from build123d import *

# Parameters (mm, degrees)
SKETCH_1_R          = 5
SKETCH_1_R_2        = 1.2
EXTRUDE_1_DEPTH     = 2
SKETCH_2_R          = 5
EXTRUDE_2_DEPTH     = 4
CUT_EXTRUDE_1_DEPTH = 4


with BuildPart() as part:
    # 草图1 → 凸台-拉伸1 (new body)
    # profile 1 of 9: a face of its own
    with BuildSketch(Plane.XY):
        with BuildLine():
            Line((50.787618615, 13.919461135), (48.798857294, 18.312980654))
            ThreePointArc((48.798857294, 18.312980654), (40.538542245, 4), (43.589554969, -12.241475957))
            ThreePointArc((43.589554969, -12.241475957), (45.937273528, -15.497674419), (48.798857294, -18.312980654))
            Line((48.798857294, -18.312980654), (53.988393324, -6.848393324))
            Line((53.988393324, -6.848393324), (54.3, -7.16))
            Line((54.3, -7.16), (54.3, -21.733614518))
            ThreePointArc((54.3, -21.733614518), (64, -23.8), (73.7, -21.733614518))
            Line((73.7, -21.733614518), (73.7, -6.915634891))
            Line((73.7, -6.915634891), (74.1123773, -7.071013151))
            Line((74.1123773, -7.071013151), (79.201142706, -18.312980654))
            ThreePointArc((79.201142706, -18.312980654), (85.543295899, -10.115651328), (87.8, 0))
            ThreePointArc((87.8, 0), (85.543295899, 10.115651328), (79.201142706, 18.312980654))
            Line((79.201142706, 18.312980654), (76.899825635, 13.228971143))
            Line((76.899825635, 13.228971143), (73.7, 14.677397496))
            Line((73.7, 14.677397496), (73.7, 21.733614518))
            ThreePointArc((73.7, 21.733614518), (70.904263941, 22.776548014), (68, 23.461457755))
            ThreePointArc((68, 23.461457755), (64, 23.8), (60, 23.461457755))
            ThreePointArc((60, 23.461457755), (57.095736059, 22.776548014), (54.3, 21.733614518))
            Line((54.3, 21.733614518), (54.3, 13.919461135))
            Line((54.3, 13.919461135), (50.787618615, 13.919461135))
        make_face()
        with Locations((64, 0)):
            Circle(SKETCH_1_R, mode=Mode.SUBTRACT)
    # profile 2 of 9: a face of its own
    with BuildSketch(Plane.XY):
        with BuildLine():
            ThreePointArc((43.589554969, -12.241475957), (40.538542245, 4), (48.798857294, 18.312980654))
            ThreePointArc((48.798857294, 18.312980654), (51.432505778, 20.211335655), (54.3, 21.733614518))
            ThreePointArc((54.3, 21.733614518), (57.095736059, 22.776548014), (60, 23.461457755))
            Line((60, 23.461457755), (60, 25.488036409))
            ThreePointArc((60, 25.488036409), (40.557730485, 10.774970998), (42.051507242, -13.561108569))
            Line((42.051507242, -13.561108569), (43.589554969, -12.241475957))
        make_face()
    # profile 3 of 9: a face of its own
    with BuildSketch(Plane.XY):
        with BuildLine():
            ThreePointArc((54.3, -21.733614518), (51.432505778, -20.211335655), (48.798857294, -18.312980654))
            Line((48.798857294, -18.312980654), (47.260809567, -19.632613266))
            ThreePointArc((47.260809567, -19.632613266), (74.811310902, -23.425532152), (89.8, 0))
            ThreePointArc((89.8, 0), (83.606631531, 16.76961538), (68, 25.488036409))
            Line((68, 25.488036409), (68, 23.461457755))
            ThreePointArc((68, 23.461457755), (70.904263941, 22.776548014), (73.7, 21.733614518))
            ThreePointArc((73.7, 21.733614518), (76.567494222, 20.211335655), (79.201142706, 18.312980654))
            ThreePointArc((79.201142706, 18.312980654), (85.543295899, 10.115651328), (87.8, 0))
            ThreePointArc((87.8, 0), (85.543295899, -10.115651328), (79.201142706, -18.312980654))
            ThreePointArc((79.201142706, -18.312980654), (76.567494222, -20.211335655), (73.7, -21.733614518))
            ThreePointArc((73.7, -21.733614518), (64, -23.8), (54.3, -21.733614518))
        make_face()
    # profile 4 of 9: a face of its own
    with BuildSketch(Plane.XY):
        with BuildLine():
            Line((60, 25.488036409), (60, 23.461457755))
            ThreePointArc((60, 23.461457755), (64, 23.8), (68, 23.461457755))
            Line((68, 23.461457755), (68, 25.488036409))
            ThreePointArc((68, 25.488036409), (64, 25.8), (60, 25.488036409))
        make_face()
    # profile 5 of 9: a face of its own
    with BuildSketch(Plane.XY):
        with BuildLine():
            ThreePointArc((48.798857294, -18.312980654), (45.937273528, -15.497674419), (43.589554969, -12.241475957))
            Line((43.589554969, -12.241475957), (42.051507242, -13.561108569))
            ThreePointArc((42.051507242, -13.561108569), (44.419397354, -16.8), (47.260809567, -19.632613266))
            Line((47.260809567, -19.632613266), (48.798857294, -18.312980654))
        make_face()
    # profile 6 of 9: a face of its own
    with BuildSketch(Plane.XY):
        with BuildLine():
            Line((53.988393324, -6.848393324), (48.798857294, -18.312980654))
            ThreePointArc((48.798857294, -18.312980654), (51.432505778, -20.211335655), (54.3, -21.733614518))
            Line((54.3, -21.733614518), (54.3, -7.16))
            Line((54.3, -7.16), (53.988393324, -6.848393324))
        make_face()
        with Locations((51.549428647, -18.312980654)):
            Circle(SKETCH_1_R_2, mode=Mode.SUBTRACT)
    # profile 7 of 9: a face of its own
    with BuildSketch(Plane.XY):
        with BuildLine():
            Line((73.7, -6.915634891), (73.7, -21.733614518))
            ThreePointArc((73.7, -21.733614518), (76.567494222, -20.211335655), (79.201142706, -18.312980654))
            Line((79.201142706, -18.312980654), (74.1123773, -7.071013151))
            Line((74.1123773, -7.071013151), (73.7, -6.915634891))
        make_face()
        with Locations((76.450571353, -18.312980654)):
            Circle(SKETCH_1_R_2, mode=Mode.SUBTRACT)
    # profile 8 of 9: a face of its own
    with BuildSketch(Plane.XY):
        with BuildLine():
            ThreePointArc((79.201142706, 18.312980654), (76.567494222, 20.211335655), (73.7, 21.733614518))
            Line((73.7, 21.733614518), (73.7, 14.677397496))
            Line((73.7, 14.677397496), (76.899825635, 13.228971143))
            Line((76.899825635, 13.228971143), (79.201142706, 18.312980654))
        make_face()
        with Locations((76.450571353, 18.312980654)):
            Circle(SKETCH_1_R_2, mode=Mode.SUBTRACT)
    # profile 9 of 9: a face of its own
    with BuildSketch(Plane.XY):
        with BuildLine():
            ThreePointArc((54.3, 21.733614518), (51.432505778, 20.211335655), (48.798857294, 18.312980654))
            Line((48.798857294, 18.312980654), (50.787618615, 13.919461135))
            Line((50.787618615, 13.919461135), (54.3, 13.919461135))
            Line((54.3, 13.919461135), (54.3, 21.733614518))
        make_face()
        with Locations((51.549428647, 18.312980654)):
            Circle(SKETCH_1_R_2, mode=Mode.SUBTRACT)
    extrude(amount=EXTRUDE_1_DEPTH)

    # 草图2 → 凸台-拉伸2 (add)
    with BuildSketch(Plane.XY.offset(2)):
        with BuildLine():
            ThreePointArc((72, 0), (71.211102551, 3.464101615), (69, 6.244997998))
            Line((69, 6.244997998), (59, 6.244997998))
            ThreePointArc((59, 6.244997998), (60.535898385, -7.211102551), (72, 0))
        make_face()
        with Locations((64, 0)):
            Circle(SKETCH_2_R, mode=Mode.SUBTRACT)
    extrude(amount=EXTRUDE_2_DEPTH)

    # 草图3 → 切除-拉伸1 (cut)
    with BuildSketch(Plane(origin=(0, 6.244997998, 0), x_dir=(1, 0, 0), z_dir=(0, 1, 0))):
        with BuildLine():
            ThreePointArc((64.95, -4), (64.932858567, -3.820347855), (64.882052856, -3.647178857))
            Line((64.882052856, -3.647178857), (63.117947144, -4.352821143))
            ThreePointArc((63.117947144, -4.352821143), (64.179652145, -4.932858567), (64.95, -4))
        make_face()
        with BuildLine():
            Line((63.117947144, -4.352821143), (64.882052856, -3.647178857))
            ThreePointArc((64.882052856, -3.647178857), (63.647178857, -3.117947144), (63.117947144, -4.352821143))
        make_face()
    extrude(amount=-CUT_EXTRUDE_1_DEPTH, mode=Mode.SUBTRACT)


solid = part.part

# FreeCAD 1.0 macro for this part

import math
import FreeCAD as App
import Part
import Sketcher

V = App.Vector

doc = App.newDocument("Part")
body = doc.addObject("PartDesign::Body", "Body")

# Sketch on XY plane
sketch1 = doc.addObject("Sketcher::SketchObject", "Sketch")
body.addObject(sketch1)
sketch1.AttachmentSupport = (doc.XY_Plane, [""])
sketch1.MapMode = "FlatFace"
sketch1.addGeometry(Part.ArcOfCircle(Part.Circle(V(64, 0, 0), V(0, 0, 1), 25.8), math.radians(98.919044), math.radians(211.710285)), False)
sketch1.addGeometry(Part.ArcOfCircle(Part.Circle(V(64, 0, 0), V(0, 0, 1), 25.8), math.radians(-148.289715), math.radians(-130.451627)), False)
sketch1.addGeometry(Part.ArcOfCircle(Part.Circle(V(64, 0, 0), V(0, 0, 1), 25.8), math.radians(-130.451627), math.radians(0)), False)
sketch1.addGeometry(Part.ArcOfCircle(Part.Circle(V(64, 0, 0), V(0, 0, 1), 25.8), math.radians(0), math.radians(81.080956)), False)
sketch1.addGeometry(Part.ArcOfCircle(Part.Circle(V(64, 0, 0), V(0, 0, 1), 25.8), math.radians(81.080956), math.radians(98.919044)), False)
sketch1.addGeometry(Part.Circle(V(64, 0, 0), V(0, 0, 1), 5), False)
sketch1.addGeometry(Part.Circle(V(51.549429, 18.312981, 0), V(0, 0, 1), 1.2), False)
sketch1.addGeometry(Part.Circle(V(51.549429, -18.312981, 0), V(0, 0, 1), 1.2), False)
sketch1.addGeometry(Part.Circle(V(76.450571, 18.312981, 0), V(0, 0, 1), 1.2), False)
sketch1.addGeometry(Part.Circle(V(76.450571, -18.312981, 0), V(0, 0, 1), 1.2), False)
sketch1.addConstraint(Sketcher.Constraint("Tangent", 0, 2, 1, 1))
sketch1.addConstraint(Sketcher.Constraint("Tangent", 1, 2, 2, 1))
sketch1.addConstraint(Sketcher.Constraint("Tangent", 2, 2, 3, 1))
sketch1.addConstraint(Sketcher.Constraint("Tangent", 3, 2, 4, 1))
sketch1.addConstraint(Sketcher.Constraint("Tangent", 4, 2, 0, 1))
sketch1.addConstraint(Sketcher.Constraint("Coincident", 2, 3, 0, 3))
sketch1.addConstraint(Sketcher.Constraint("Coincident", 5, 3, 0, 3))
sketch1.addConstraint(Sketcher.Constraint("Equal", 6, 7))
sketch1.addConstraint(Sketcher.Constraint("Equal", 7, 8))
sketch1.addConstraint(Sketcher.Constraint("Equal", 8, 9))
sketch1.addConstraint(Sketcher.Constraint("Symmetric", 6, 3, 7, 3, -1))
sketch1.addConstraint(Sketcher.Constraint("Symmetric", 8, 3, 9, 3, -1))
sketch1.addConstraint(Sketcher.Constraint("PointOnObject", 0, 3, -1))
sketch1.addConstraint(Sketcher.Constraint("PointOnObject", 2, 2, -1))
sketch1.addConstraint(Sketcher.Constraint("Horizontal", 6, 3, 8, 3))
sketch1.addConstraint(Sketcher.Constraint("Horizontal", 3, 2, 4, 2))
sketch1.addConstraint(Sketcher.Constraint("Diameter", 5, 10.0))
sketch1.addConstraint(Sketcher.Constraint("Diameter", 6, 2.4))
sketch1.addConstraint(Sketcher.Constraint("Radius", 0, 25.8))
sketch1.addConstraint(Sketcher.Constraint("DistanceX", -1, 1, 0, 3, 64.0))
sketch1.addConstraint(Sketcher.Constraint("DistanceX", -1, 1, 3, 2, 68.0))
sketch1.addConstraint(Sketcher.Constraint("DistanceX", -1, 1, 6, 3, 51.549429))
sketch1.addConstraint(Sketcher.Constraint("DistanceY", -1, 1, 6, 3, 18.312981))
sketch1.addConstraint(Sketcher.Constraint("DistanceX", -1, 1, 8, 3, 76.450571))
sketch1.addConstraint(Sketcher.Constraint("DistanceY", 0, 2, -1, 1, 13.561109))
sketch1.addConstraint(Sketcher.Constraint("DistanceX", -1, 1, 1, 2, 47.26081))
pad1 = doc.addObject("PartDesign::Pad", "Pad")
body.addObject(pad1)
pad1.Profile = sketch1
pad1.Length = 2

# Sketch on XY plane
sketch2 = doc.addObject("Sketcher::SketchObject", "Sketch001")
body.addObject(sketch2)
sketch2.AttachmentSupport = (doc.XY_Plane, [""])
sketch2.MapMode = "FlatFace"
sketch2.AttachmentOffset = App.Placement(V(0, 0, 2), App.Rotation())
sketch2.addGeometry(Part.ArcOfCircle(Part.Circle(V(64, 0, 0), V(0, 0, 1), 8), math.radians(0), math.radians(51.317813)), False)
sketch2.addGeometry(Part.LineSegment(V(69, 6.244998, 0), V(59, 6.244998, 0)), False)
sketch2.addGeometry(Part.ArcOfCircle(Part.Circle(V(64, 0, 0), V(0, 0, 1), 8), math.radians(128.682187), math.radians(360)), False)
sketch2.addGeometry(Part.Circle(V(64, 0, 0), V(0, 0, 1), 5), False)
sketch2.addConstraint(Sketcher.Constraint("Coincident", 0, 2, 1, 1))
sketch2.addConstraint(Sketcher.Constraint("Coincident", 1, 2, 2, 1))
sketch2.addConstraint(Sketcher.Constraint("Tangent", 2, 2, 0, 1))
sketch2.addConstraint(Sketcher.Constraint("Horizontal", 1))
sketch2.addConstraint(Sketcher.Constraint("Coincident", 3, 3, 0, 3))
sketch2.addConstraint(Sketcher.Constraint("Equal", 0, 2))
sketch2.addConstraint(Sketcher.Constraint("PointOnObject", 0, 3, -1))
sketch2.addConstraint(Sketcher.Constraint("PointOnObject", 2, 2, -1))
sketch2.addConstraint(Sketcher.Constraint("Diameter", 3, 10.0))
sketch2.addConstraint(Sketcher.Constraint("Radius", 0, 8.0))
sketch2.addConstraint(Sketcher.Constraint("DistanceX", 1, 2, 1, 1, 10.0))
sketch2.addConstraint(Sketcher.Constraint("DistanceX", -1, 1, 0, 3, 64.0))
pad2 = doc.addObject("PartDesign::Pad", "Pad001")
body.addObject(pad2)
pad2.Profile = sketch2
pad2.Length = 4

# Sketch on XZ plane
sketch3 = doc.addObject("Sketcher::SketchObject", "Sketch002")
body.addObject(sketch3)
sketch3.AttachmentSupport = (doc.XZ_Plane, [""])
sketch3.MapMode = "FlatFace"
sketch3.AttachmentOffset = App.Placement(V(0, 0, -6.244998), App.Rotation())
sketch3.addGeometry(Part.ArcOfCircle(Part.Circle(V(64, 4, 0), V(0, 0, 1), 0.95), math.radians(-21.801409), math.radians(0)), False)
sketch3.addGeometry(Part.ArcOfCircle(Part.Circle(V(64, 4, 0), V(0, 0, 1), 0.95), math.radians(158.19859), math.radians(338.19859)), False)
sketch3.addGeometry(Part.ArcOfCircle(Part.Circle(V(64, 4, 0), V(0, 0, 1), 0.95), math.radians(0), math.radians(158.19859)), False)
sketch3.addConstraint(Sketcher.Constraint("Tangent", 0, 1, 1, 2))
sketch3.addConstraint(Sketcher.Constraint("Tangent", 1, 1, 2, 2))
sketch3.addConstraint(Sketcher.Constraint("Tangent", 2, 1, 0, 2))
sketch3.addConstraint(Sketcher.Constraint("Horizontal", 1, 3, 2, 1))
sketch3.addConstraint(Sketcher.Constraint("Radius", 0, 0.95))
sketch3.addConstraint(Sketcher.Constraint("DistanceX", -1, 1, 0, 3, 64.0))
sketch3.addConstraint(Sketcher.Constraint("DistanceY", -1, 1, 0, 3, 4.0))
sketch3.addConstraint(Sketcher.Constraint("DistanceY", -1, 1, 0, 1, 3.647179))
sketch3.addConstraint(Sketcher.Constraint("DistanceY", -1, 1, 1, 1, 4.352821))
pocket1 = doc.addObject("PartDesign::Pocket", "Pocket")
body.addObject(pocket1)
pocket1.Profile = sketch3
pocket1.Length = 4
pocket1.Reversed = True

doc.recompute()
